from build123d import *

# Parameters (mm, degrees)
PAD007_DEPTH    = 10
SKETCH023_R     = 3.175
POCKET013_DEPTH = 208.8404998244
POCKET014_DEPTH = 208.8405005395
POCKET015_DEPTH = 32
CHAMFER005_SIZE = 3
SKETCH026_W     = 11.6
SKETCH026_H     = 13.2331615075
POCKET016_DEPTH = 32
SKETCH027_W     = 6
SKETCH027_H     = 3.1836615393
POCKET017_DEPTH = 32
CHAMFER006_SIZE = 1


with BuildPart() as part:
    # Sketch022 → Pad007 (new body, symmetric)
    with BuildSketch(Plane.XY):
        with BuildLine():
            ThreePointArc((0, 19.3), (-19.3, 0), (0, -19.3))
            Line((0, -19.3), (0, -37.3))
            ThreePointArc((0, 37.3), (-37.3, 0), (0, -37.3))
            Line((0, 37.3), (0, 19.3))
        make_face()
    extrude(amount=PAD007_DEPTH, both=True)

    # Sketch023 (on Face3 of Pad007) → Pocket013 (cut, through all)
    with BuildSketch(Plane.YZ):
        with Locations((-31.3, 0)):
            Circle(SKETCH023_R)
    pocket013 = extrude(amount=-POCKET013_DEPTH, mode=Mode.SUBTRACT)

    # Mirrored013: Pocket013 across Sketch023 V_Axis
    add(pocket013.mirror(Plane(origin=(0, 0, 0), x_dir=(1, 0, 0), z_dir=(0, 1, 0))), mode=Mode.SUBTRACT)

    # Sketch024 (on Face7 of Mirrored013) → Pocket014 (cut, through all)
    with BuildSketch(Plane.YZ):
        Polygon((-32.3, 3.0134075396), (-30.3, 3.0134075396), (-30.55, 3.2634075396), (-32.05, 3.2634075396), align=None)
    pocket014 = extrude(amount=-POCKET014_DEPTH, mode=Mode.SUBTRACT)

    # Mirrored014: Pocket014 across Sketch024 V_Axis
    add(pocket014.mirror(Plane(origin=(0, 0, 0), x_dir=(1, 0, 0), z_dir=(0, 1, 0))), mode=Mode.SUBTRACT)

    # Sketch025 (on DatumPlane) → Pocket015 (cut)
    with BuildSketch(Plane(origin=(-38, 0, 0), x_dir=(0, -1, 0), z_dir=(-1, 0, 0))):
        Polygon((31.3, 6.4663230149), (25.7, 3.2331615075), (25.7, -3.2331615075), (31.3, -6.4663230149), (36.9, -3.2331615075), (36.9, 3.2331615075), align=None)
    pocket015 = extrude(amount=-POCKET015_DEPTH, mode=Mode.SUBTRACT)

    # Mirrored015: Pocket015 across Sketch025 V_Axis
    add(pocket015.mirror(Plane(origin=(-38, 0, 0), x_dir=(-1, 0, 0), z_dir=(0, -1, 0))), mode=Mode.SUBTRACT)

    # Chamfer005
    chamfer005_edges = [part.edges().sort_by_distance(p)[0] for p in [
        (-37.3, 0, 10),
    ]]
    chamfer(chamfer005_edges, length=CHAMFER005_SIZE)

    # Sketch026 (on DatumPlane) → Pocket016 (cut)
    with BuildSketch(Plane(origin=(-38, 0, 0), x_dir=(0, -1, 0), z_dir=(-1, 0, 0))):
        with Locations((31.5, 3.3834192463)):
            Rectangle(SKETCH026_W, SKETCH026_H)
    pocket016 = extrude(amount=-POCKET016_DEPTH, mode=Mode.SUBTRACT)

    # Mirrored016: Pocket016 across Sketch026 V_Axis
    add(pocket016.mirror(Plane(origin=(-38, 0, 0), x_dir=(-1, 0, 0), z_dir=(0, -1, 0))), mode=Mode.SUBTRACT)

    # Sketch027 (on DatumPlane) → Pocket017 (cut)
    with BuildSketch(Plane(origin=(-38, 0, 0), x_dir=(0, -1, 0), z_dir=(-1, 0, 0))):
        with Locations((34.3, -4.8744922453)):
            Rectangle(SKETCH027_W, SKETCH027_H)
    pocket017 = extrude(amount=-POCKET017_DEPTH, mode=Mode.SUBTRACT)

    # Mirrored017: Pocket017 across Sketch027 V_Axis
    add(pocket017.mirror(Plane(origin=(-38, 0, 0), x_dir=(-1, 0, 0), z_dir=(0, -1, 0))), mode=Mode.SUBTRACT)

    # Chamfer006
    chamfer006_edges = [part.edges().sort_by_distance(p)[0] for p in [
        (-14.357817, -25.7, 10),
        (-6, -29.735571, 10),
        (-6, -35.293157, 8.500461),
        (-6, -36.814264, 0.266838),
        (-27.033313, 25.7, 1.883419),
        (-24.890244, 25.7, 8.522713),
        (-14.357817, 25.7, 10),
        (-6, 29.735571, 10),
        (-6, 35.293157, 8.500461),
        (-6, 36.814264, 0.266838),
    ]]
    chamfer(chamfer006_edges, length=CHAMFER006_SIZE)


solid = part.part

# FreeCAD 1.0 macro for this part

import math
import FreeCAD as App
import Part
import Sketcher

V = App.Vector
Q = App.Units.Quantity


def edges_at(feature, points):
    """Names of the edges that pass closest to the given points."""
    edges = feature.Shape.Edges
    near = lambda p: min(range(len(edges)), key=lambda i: edges[i].distToShape(Part.Vertex(*p))[0])
    return sorted({f"Edge{near(p) + 1}" for p in points})

doc = App.newDocument("Part")
body = doc.addObject("PartDesign::Body", "Body")

# Sketch on XY plane
sketch1 = doc.addObject("Sketcher::SketchObject", "Sketch")
body.addObject(sketch1)
sketch1.AttachmentSupport = (doc.XY_Plane, [""])
sketch1.MapMode = "FlatFace"
sketch1.addGeometry(Part.ArcOfCircle(Part.Circle(V(0, 0, 0), V(0, 0, 1), 19), math.radians(90), math.radians(270)), False)
sketch1.addGeometry(Part.LineSegment(V(0, 19, 0), V(0, 37, 0)), False)
sketch1.addGeometry(Part.ArcOfCircle(Part.Circle(V(0, 0, 0), V(0, 0, 1), 37), math.radians(90), math.radians(270)), False)
sketch1.addGeometry(Part.LineSegment(V(0, -37, 0), V(0, -19, 0)), False)
sketch1.addConstraint(Sketcher.Constraint("Coincident", 0, 1, 1, 1))
sketch1.addConstraint(Sketcher.Constraint("Coincident", 1, 2, 2, 1))
sketch1.addConstraint(Sketcher.Constraint("Coincident", 2, 2, 3, 1))
sketch1.addConstraint(Sketcher.Constraint("Coincident", 3, 2, 0, 2))
sketch1.addConstraint(Sketcher.Constraint("Vertical", 1))
sketch1.addConstraint(Sketcher.Constraint("Vertical", 3))
sketch1.addConstraint(Sketcher.Constraint("Coincident", 0, 3, -1, 1))
sketch1.addConstraint(Sketcher.Constraint("Coincident", 2, 3, -1, 1))
sketch1.addConstraint(Sketcher.Constraint("PointOnObject", 0, 1, -2))
sketch1.addConstraint(Sketcher.Constraint("PointOnObject", 2, 2, -2))
sketch1.addConstraint(Sketcher.Constraint("Radius", 0, 19.3))
sketch1.addConstraint(Sketcher.Constraint("Radius", 2, 37.3))
pad1 = doc.addObject("PartDesign::Pad", "Pad")
body.addObject(pad1)
pad1.Profile = sketch1
pad1.Length = 20
pad1.Midplane = True

# Sketch on YZ plane
sketch2 = doc.addObject("Sketcher::SketchObject", "Sketch001")
body.addObject(sketch2)
sketch2.AttachmentSupport = (doc.YZ_Plane, [""])
sketch2.MapMode = "FlatFace"
sketch2.addGeometry(Part.Circle(V(-31.3, 0, 0), V(0, 0, 1), 3.2), False)
sketch2.addConstraint(Sketcher.Constraint("PointOnObject", 0, 3, -1))
sketch2.addConstraint(Sketcher.Constraint("Diameter", 0, 6.35))
sketch2.addConstraint(Sketcher.Constraint("DistanceX", 0, 3, -1, 1, 31.3))
pocket1 = doc.addObject("PartDesign::Pocket", "Pocket")
body.addObject(pocket1)
pocket1.Profile = sketch2
pocket1.Type = "ThroughAll"
doc.recompute()

mirrored = doc.addObject("PartDesign::Mirrored", "Mirrored")
body.addObject(mirrored)
mirrored.Originals = [pocket1]
mirrored.MirrorPlane = (doc.XZ_Plane, [""])
body.Tip = mirrored

# Sketch on YZ plane
sketch3 = doc.addObject("Sketcher::SketchObject", "Sketch002")
body.addObject(sketch3)
sketch3.AttachmentSupport = (doc.YZ_Plane, [""])
sketch3.MapMode = "FlatFace"
sketch3.addGeometry(Part.LineSegment(V(-32.3, 3.01, 0), V(-30.3, 3.01, 0)), False)
sketch3.addGeometry(Part.LineSegment(V(-30.3, 3.01, 0), V(-30.55, 3.26, 0)), False)
sketch3.addGeometry(Part.LineSegment(V(-30.55, 3.26, 0), V(-32.05, 3.26, 0)), False)
sketch3.addGeometry(Part.LineSegment(V(-32.05, 3.26, 0), V(-32.3, 3.01, 0)), False)
sketch3.addConstraint(Sketcher.Constraint("Coincident", 0, 2, 1, 1))
sketch3.addConstraint(Sketcher.Constraint("Coincident", 1, 2, 2, 1))
sketch3.addConstraint(Sketcher.Constraint("Coincident", 2, 2, 3, 1))
sketch3.addConstraint(Sketcher.Constraint("Coincident", 3, 2, 0, 1))
sketch3.addConstraint(Sketcher.Constraint("Horizontal", 0))
sketch3.addConstraint(Sketcher.Constraint("Horizontal", 2))
sketch3.addConstraint(Sketcher.Constraint("Perpendicular", 1, 3))
sketch3.addConstraint(Sketcher.Constraint("Equal", 1, 3))
sketch3.addConstraint(Sketcher.Constraint("DistanceX", 0, 1, 0, 2, 2.0))
sketch3.addConstraint(Sketcher.Constraint("DistanceX", 2, 2, 2, 1, 1.5))
sketch3.addConstraint(Sketcher.Constraint("DistanceX", 0, 2, -1, 1, 30.3))
sketch3.addConstraint(Sketcher.Constraint("DistanceY", -1, 1, 0, 2, 3.013408))
pocket2 = doc.addObject("PartDesign::Pocket", "Pocket001")
body.addObject(pocket2)
pocket2.Profile = sketch3
pocket2.Type = "ThroughAll"
doc.recompute()

mirrored2 = doc.addObject("PartDesign::Mirrored", "Mirrored001")
body.addObject(mirrored2)
mirrored2.Originals = [pocket2]
mirrored2.MirrorPlane = (doc.XZ_Plane, [""])
body.Tip = mirrored2

# Sketch on YZ plane
sketch4 = doc.addObject("Sketcher::SketchObject", "Sketch003")
body.addObject(sketch4)
sketch4.AttachmentSupport = (doc.YZ_Plane, [""])
sketch4.MapMode = "FlatFace"
sketch4.AttachmentOffset = App.Placement(V(0, 0, -38), App.Rotation())
sketch4.addGeometry(Part.LineSegment(V(-31, 6, 0), V(-26, 3, 0)), False)
sketch4.addGeometry(Part.LineSegment(V(-26, 3, 0), V(-26, -3, 0)), False)
sketch4.addGeometry(Part.LineSegment(V(-26, -3, 0), V(-31, -6, 0)), False)
sketch4.addGeometry(Part.LineSegment(V(-31, -6, 0), V(-37, -3, 0)), False)
sketch4.addGeometry(Part.LineSegment(V(-37, -3, 0), V(-37, 3, 0)), False)
sketch4.addGeometry(Part.LineSegment(V(-37, 3, 0), V(-31, 6, 0)), False)
sketch4.addConstraint(Sketcher.Constraint("Coincident", 0, 2, 1, 1))
sketch4.addConstraint(Sketcher.Constraint("Coincident", 1, 2, 2, 1))
sketch4.addConstraint(Sketcher.Constraint("Coincident", 2, 2, 3, 1))
sketch4.addConstraint(Sketcher.Constraint("Coincident", 3, 2, 4, 1))
sketch4.addConstraint(Sketcher.Constraint("Coincident", 4, 2, 5, 1))
sketch4.addConstraint(Sketcher.Constraint("Coincident", 5, 2, 0, 1))
sketch4.addConstraint(Sketcher.Constraint("Vertical", 1))
sketch4.addConstraint(Sketcher.Constraint("Vertical", 4))
sketch4.addConstraint(Sketcher.Constraint("Symmetric", 2, 2, 5, 2, -1))
sketch4.addConstraint(Sketcher.Constraint("Parallel", 0, 3))
sketch4.addConstraint(Sketcher.Constraint("Parallel", 2, 5))
sketch4.addConstraint(Sketcher.Constraint("Horizontal", 1, 2, 3, 2))
sketch4.addConstraint(Sketcher.Constraint("Horizontal", 0, 2, 4, 2))
sketch4.addConstraint(Sketcher.Constraint("Angle", 0, Q("-30 deg")))
sketch4.addConstraint(Sketcher.Constraint("DistanceX", 0, 2, -1, 1, 25.7))
sketch4.addConstraint(Sketcher.Constraint("DistanceX", 2, 2, -1, 1, 31.3))
sketch4.addConstraint(Sketcher.Constraint("DistanceY", 1, 2, 1, 1, 6.466323))
pocket3 = doc.addObject("PartDesign::Pocket", "Pocket002")
body.addObject(pocket3)
pocket3.Profile = sketch4
pocket3.Length = 32
pocket3.Reversed = True
doc.recompute()

mirrored3 = doc.addObject("PartDesign::Mirrored", "Mirrored002")
body.addObject(mirrored3)
mirrored3.Originals = [pocket3]
mirrored3.MirrorPlane = (doc.XZ_Plane, [""])
body.Tip = mirrored3
doc.recompute()

chamfer = doc.addObject("PartDesign::Chamfer", "Chamfer")
body.addObject(chamfer)
chamfer.Base = (mirrored3, edges_at(mirrored3, [(-37.3, 0, 10)]))
chamfer.Size = 3

# Sketch on YZ plane
sketch5 = doc.addObject("Sketcher::SketchObject", "Sketch004")
body.addObject(sketch5)
sketch5.AttachmentSupport = (doc.YZ_Plane, [""])
sketch5.MapMode = "FlatFace"
sketch5.AttachmentOffset = App.Placement(V(0, 0, -38), App.Rotation())
sketch5.addGeometry(Part.LineSegment(V(-26, 10, 0), V(-26, -3, 0)), False)
sketch5.addGeometry(Part.LineSegment(V(-26, -3, 0), V(-37, -3, 0)), False)
sketch5.addGeometry(Part.LineSegment(V(-37, -3, 0), V(-37, 10, 0)), False)
sketch5.addGeometry(Part.LineSegment(V(-37, 10, 0), V(-26, 10, 0)), False)
sketch5.addConstraint(Sketcher.Constraint("Coincident", 0, 2, 1, 1))
sketch5.addConstraint(Sketcher.Constraint("Coincident", 1, 2, 2, 1))
sketch5.addConstraint(Sketcher.Constraint("Coincident", 2, 2, 3, 1))
sketch5.addConstraint(Sketcher.Constraint("Coincident", 3, 2, 0, 1))
sketch5.addConstraint(Sketcher.Constraint("Vertical", 0))
sketch5.addConstraint(Sketcher.Constraint("Horizontal", 1))
sketch5.addConstraint(Sketcher.Constraint("Vertical", 2))
sketch5.addConstraint(Sketcher.Constraint("Horizontal", 3))
sketch5.addConstraint(Sketcher.Constraint("DistanceX", 1, 2, 1, 1, 11.6))
sketch5.addConstraint(Sketcher.Constraint("DistanceY", -1, 1, 2, 2, 10.0))
sketch5.addConstraint(Sketcher.Constraint("DistanceX", 0, 2, -1, 1, 25.7))
sketch5.addConstraint(Sketcher.Constraint("DistanceY", 0, 2, 0, 1, 13.233162))
pocket4 = doc.addObject("PartDesign::Pocket", "Pocket003")
body.addObject(pocket4)
pocket4.Profile = sketch5
pocket4.Length = 32
pocket4.Reversed = True
doc.recompute()

mirrored4 = doc.addObject("PartDesign::Mirrored", "Mirrored003")
body.addObject(mirrored4)
mirrored4.Originals = [pocket4]
mirrored4.MirrorPlane = (doc.XZ_Plane, [""])
body.Tip = mirrored4

# Sketch on YZ plane
sketch6 = doc.addObject("Sketcher::SketchObject", "Sketch005")
body.addObject(sketch6)
sketch6.AttachmentSupport = (doc.YZ_Plane, [""])
sketch6.MapMode = "FlatFace"
sketch6.AttachmentOffset = App.Placement(V(0, 0, -38), App.Rotation())
sketch6.addGeometry(Part.LineSegment(V(-31.3, -3.3, 0), V(-31.3, -6.5, 0)), False)
sketch6.addGeometry(Part.LineSegment(V(-31.3, -6.5, 0), V(-37.3, -6.5, 0)), False)
sketch6.addGeometry(Part.LineSegment(V(-37.3, -6.5, 0), V(-37.3, -3.3, 0)), False)
sketch6.addGeometry(Part.LineSegment(V(-37.3, -3.3, 0), V(-31.3, -3.3, 0)), False)
sketch6.addConstraint(Sketcher.Constraint("Coincident", 0, 2, 1, 1))
sketch6.addConstraint(Sketcher.Constraint("Coincident", 1, 2, 2, 1))
sketch6.addConstraint(Sketcher.Constraint("Coincident", 2, 2, 3, 1))
sketch6.addConstraint(Sketcher.Constraint("Coincident", 3, 2, 0, 1))
sketch6.addConstraint(Sketcher.Constraint("Vertical", 0))
sketch6.addConstraint(Sketcher.Constraint("Horizontal", 1))
sketch6.addConstraint(Sketcher.Constraint("Vertical", 2))
sketch6.addConstraint(Sketcher.Constraint("Horizontal", 3))
sketch6.addConstraint(Sketcher.Constraint("DistanceX", 1, 2, 1, 1, 6.0))
sketch6.addConstraint(Sketcher.Constraint("DistanceX", 0, 2, -1, 1, 31.3))
sketch6.addConstraint(Sketcher.Constraint("DistanceY", 0, 2, 0, 1, 3.183662))
sketch6.addConstraint(Sketcher.Constraint("DistanceY", 2, 2, -1, 1, 3.282661))
pocket5 = doc.addObject("PartDesign::Pocket", "Pocket004")
body.addObject(pocket5)
pocket5.Profile = sketch6
pocket5.Length = 32
pocket5.Reversed = True
doc.recompute()

mirrored5 = doc.addObject("PartDesign::Mirrored", "Mirrored004")
body.addObject(mirrored5)
mirrored5.Originals = [pocket5]
mirrored5.MirrorPlane = (doc.XZ_Plane, [""])
body.Tip = mirrored5
doc.recompute()

chamfer2 = doc.addObject("PartDesign::Chamfer", "Chamfer001")
body.addObject(chamfer2)
chamfer2.Base = (mirrored5, edges_at(mirrored5, [
    (-14.358, -25.7, 10),
    (-6, -29.736, 10),
    (-6, -35.293, 8.5),
    (-6, -36.814, 0.267),
    (-27.033, 25.7, 1.883),
    (-24.89, 25.7, 8.523),
    (-14.358, 25.7, 10),
    (-6, 29.736, 10),
    (-6, 35.293, 8.5),
    (-6, 36.814, 0.267),
]))
chamfer2.Size = 1

doc.recompute()
